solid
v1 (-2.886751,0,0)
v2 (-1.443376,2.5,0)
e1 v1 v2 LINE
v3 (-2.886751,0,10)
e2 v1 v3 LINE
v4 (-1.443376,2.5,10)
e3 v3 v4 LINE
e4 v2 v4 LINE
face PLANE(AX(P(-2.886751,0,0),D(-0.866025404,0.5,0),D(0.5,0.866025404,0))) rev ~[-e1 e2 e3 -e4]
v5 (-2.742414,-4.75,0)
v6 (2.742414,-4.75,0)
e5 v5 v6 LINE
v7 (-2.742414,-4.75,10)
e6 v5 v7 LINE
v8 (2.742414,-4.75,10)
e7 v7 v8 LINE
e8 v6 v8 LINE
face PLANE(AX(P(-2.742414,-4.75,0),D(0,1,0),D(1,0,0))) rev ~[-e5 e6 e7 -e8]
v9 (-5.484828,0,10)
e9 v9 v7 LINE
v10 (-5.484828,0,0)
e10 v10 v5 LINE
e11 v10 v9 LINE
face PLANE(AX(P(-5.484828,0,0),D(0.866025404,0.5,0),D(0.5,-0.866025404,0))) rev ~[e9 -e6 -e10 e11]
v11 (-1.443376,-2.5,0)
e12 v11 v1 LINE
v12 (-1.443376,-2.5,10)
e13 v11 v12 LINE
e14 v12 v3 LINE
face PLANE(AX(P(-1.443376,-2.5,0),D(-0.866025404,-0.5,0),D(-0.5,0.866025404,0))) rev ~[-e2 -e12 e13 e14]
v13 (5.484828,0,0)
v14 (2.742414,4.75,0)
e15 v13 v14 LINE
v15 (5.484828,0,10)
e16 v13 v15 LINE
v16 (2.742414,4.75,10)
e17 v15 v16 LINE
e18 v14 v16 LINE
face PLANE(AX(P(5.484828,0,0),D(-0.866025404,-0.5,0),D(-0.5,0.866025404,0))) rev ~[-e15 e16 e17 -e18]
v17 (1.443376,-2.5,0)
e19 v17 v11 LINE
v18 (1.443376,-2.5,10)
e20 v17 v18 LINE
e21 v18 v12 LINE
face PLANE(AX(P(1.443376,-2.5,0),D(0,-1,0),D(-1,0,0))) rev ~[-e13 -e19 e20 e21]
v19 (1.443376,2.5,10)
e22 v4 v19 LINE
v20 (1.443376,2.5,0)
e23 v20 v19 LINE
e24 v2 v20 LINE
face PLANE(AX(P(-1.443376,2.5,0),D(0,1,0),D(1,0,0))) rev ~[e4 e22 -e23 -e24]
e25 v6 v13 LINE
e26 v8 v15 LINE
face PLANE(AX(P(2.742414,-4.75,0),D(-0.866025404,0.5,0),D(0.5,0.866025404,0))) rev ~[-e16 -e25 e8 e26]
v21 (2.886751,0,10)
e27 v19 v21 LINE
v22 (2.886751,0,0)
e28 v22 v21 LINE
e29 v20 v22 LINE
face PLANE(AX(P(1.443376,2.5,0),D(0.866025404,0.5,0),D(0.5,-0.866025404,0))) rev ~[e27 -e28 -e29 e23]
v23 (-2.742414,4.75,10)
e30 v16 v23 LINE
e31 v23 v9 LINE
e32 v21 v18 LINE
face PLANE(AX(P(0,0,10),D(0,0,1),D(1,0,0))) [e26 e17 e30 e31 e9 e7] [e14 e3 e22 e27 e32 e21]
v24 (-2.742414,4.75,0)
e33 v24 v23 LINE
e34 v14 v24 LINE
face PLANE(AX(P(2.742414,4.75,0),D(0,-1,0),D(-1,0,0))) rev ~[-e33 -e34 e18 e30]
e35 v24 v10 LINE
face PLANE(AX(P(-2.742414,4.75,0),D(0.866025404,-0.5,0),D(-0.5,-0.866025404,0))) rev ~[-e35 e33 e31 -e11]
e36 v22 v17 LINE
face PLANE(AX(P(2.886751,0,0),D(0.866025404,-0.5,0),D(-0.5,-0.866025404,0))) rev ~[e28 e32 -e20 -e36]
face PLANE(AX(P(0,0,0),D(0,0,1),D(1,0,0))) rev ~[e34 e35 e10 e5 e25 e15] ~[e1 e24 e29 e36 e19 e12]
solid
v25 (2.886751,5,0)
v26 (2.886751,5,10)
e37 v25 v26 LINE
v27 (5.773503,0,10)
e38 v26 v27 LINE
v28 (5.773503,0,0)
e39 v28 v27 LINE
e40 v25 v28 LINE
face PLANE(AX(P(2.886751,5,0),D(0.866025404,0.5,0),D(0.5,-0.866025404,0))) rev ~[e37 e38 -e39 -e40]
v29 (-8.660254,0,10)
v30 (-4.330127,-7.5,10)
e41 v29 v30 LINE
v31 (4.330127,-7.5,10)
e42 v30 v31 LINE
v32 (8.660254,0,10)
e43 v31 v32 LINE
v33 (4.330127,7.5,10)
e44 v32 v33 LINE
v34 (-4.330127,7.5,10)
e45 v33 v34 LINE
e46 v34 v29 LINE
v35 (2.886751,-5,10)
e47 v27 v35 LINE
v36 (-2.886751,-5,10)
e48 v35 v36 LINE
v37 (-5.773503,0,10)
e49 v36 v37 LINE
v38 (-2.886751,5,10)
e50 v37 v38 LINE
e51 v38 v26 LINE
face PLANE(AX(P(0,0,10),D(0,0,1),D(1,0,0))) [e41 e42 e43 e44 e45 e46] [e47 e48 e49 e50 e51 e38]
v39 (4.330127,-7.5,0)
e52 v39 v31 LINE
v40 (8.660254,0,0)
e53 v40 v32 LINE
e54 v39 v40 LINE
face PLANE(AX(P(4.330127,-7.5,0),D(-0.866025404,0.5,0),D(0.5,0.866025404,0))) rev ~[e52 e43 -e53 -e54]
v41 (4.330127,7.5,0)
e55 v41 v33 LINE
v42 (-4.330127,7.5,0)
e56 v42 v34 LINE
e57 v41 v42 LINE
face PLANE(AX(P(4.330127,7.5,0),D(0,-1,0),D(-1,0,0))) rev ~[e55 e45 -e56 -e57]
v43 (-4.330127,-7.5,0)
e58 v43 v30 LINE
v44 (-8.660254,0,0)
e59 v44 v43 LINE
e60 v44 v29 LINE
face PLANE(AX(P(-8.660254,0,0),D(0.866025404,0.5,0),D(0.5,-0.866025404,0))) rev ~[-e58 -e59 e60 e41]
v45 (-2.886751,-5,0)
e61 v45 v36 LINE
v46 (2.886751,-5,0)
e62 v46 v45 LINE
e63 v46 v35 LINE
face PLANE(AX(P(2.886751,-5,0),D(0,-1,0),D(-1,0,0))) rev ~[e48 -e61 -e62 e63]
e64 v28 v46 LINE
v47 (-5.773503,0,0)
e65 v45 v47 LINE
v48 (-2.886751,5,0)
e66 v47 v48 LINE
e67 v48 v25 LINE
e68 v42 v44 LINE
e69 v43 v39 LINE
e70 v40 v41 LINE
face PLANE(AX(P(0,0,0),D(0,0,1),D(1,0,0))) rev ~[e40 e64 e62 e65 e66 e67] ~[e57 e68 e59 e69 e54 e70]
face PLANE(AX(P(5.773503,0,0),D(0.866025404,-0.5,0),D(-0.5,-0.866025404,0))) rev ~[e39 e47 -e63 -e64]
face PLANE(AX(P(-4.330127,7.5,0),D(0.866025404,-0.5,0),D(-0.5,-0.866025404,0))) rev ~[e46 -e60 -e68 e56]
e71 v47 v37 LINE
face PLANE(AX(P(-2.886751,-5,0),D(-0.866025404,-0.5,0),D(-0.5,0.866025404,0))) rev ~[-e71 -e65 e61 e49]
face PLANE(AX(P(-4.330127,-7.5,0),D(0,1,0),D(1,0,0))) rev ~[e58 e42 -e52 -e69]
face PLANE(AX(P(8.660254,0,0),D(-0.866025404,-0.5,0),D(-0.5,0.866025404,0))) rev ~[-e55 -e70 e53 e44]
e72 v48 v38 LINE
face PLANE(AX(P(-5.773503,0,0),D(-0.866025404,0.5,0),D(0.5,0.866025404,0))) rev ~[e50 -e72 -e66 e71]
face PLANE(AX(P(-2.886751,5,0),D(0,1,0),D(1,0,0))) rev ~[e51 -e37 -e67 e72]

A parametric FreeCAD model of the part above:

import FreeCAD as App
import Part
import Sketcher
from FreeCAD import Vector
Q = App.Units.Quantity


def add_polygon(sketch, points):
    """Adds a closed chain of lines whose ends are joined by coincident constraints."""
    first, n = sketch.GeometryCount, len(points)
    for a, b in zip(points, points[1:] + points[:1]):
        sketch.addGeometry(Part.LineSegment(App.Vector(*a, 0), App.Vector(*b, 0)), False)
    for i in range(n):
        sketch.addConstraint(Sketcher.Constraint("Coincident", first + i, 2, first + (i + 1) % n, 1))

doc = App.newDocument("Part")
body = doc.addObject("PartDesign::Body", "Body")

sketch1 = doc.addObject("Sketcher::SketchObject", "Sketch")
body.addObject(sketch1)
sketch1.AttachmentSupport = (doc.XY_Plane, [""])
sketch1.MapMode = "FlatFace"
add_polygon(sketch1, [(2.742414, 4.75), (-2.742414, 4.75), (-5.484828, 0), (-2.742414, -4.75), (2.742414, -4.75), (5.484828, 0)])
add_polygon(sketch1, [(-1.443376, -2.5), (-2.886751, 0), (-1.443376, 2.5), (1.443376, 2.5), (2.886751, 0), (1.443376, -2.5)])
sketch1.addConstraint([
    Sketcher.Constraint("Horizontal", 0),
    Sketcher.Constraint("Horizontal", 3),
    Sketcher.Constraint("Horizontal", 8),
    Sketcher.Constraint("Horizontal", 11),
    Sketcher.Constraint("Symmetric", 0, 2, 3, 2, -1, 1),
    Sketcher.Constraint("Symmetric", 1, 2, 4, 2, -1, 1),
    Sketcher.Constraint("Symmetric", 6, 2, 9, 2, -1, 1),
    Sketcher.Constraint("Symmetric", 7, 2, 10, 2, -1, 1),
    Sketcher.Constraint("PointOnObject", 1, 2, -1),
    Sketcher.Constraint("PointOnObject", 6, 2, -1),
    Sketcher.Constraint("Parallel", 2, 5),
    Sketcher.Constraint("Parallel", 5, 6),
    Sketcher.Constraint("Parallel", 4, 7),
    Sketcher.Constraint("Parallel", 6, 9),
    Sketcher.Constraint("Vertical", 0, 2, 2, 2),
    Sketcher.Constraint("Angle", 1, Q("-120 deg")),
    Sketcher.Constraint("DistanceY", 10, 2, 8, 2, 5.0),
    Sketcher.Constraint("DistanceY", 2, 2, 0, 2, 9.5),
    Sketcher.Constraint("DistanceX", 8, 1, 8, 2, 2.886751),
    Sketcher.Constraint("DistanceX", 0, 2, 0, 1, 5.484828),
])
pad1 = doc.addObject("PartDesign::Pad", "Pad")
body.addObject(pad1)
pad1.Profile = sketch1
pad1.Length = 10
body2 = doc.addObject("PartDesign::Body", "Body001")

sketch2 = doc.addObject("Sketcher::SketchObject", "Sketch001")
body2.addObject(sketch2)
sketch2.AttachmentSupport = (doc.getObject("XY_Plane001"), [""])
sketch2.MapMode = "FlatFace"
add_polygon(sketch2, [(4.330127, 7.5), (-4.330127, 7.5), (-8.660254, 0), (-4.330127, -7.5), (4.330127, -7.5), (8.660254, 0)])
add_polygon(sketch2, [(-2.886751, -5), (-5.773503, 0), (-2.886751, 5), (2.886751, 5), (5.773503, 0), (2.886751, -5)])
sketch2.addConstraint([
    Sketcher.Constraint("Horizontal", 0),
    Sketcher.Constraint("Horizontal", 3),
    Sketcher.Constraint("Horizontal", 8),
    Sketcher.Constraint("Horizontal", 11),
    Sketcher.Constraint("Symmetric", 0, 2, 3, 2, -1, 1),
    Sketcher.Constraint("Symmetric", 1, 2, 4, 2, -1, 1),
    Sketcher.Constraint("Symmetric", 6, 2, 9, 2, -1, 1),
    Sketcher.Constraint("Symmetric", 7, 2, 10, 2, -1, 1),
    Sketcher.Constraint("PointOnObject", 1, 2, -1),
    Sketcher.Constraint("PointOnObject", 6, 2, -1),
    Sketcher.Constraint("Parallel", 2, 5),
    Sketcher.Constraint("Parallel", 5, 6),
    Sketcher.Constraint("Parallel", 4, 7),
    Sketcher.Constraint("Parallel", 6, 9),
    Sketcher.Constraint("Vertical", 0, 2, 2, 2),
    Sketcher.Constraint("Angle", 1, Q("-120 deg")),
    Sketcher.Constraint("DistanceY", -1, 1, 7, 2, 5.0),
    Sketcher.Constraint("DistanceY", 2, 2, 0, 2, 15.0),
    Sketcher.Constraint("DistanceX", 0, 2, 0, 1, 8.660254),
    Sketcher.Constraint("DistanceX", 8, 1, 8, 2, 5.773503),
])
pad2 = doc.addObject("PartDesign::Pad", "Pad001")
body2.addObject(pad2)
pad2.Profile = sketch2
pad2.Length = 10

doc.recompute()
